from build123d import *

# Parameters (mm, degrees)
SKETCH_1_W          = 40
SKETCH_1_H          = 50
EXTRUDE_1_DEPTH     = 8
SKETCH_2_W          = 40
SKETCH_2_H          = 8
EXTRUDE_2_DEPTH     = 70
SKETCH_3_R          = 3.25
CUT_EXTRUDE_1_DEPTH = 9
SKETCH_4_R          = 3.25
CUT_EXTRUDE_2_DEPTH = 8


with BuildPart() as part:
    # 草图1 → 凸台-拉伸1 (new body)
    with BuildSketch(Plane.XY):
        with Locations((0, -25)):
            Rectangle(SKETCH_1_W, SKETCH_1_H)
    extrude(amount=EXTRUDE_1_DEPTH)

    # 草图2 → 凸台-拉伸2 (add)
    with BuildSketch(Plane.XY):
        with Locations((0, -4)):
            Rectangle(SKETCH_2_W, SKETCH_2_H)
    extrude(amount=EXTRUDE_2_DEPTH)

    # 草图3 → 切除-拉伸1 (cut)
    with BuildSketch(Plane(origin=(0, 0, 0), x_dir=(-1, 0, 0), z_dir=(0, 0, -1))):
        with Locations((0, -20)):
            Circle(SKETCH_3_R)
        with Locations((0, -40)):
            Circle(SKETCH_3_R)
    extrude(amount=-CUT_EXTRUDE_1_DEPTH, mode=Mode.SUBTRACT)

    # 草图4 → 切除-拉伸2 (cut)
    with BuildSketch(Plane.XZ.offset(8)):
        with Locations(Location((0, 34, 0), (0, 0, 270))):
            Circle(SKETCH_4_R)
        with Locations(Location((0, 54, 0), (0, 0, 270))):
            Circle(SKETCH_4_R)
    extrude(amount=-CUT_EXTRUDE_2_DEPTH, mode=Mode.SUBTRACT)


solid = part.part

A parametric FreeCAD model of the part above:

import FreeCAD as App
import Part
import Sketcher


def add_polygon(sketch, points):
    """Adds a closed chain of lines whose ends are joined by coincident constraints."""
    first, n = sketch.GeometryCount, len(points)
    for a, b in zip(points, points[1:] + points[:1]):
        sketch.addGeometry(Part.LineSegment(App.Vector(*a, 0), App.Vector(*b, 0)), False)
    for i in range(n):
        sketch.addConstraint(Sketcher.Constraint("Coincident", first + i, 2, first + (i + 1) % n, 1))

doc = App.newDocument("Part")
body = doc.addObject("PartDesign::Body", "Body")

# Sketch on XY plane
sketch1 = body.newObject("Sketcher::SketchObject", "Sketch")
sketch1.AttachmentSupport = (doc.getObject("XY_Plane"), [""])
sketch1.MapMode = "FlatFace"
add_polygon(sketch1, [(-20, 0), (-20, -50), (20, -50), (20, 0)])  # lines 0-3
sketch1.addConstraint([
    Sketcher.Constraint("Vertical", 0),
    Sketcher.Constraint("Horizontal", 1),
    Sketcher.Constraint("Vertical", 2),
    Sketcher.Constraint("Horizontal", 3),
    Sketcher.Constraint("Symmetric", 2, 2, 3, 2, -1, 1),
    Sketcher.Constraint("DistanceX", 1, 1, 1, 2, 40.0),
    Sketcher.Constraint("DistanceY", 0, 2, 0, 1, 50.0),
])
pad1 = body.newObject("PartDesign::Pad", "Pad")
pad1.Profile = sketch1
pad1.Length = 8

# Sketch on XY plane
sketch2 = body.newObject("Sketcher::SketchObject", "Sketch001")
sketch2.AttachmentSupport = (doc.getObject("XY_Plane"), [""])
sketch2.MapMode = "FlatFace"
add_polygon(sketch2, [(-20, 0), (-20, -8), (20, -8), (20, 0)])  # lines 0-3
sketch2.addConstraint([
    Sketcher.Constraint("Vertical", 0),
    Sketcher.Constraint("Horizontal", 1),
    Sketcher.Constraint("Vertical", 2),
    Sketcher.Constraint("Horizontal", 3),
    Sketcher.Constraint("Symmetric", 2, 2, 3, 2, -1, 1),
    Sketcher.Constraint("DistanceX", 1, 1, 1, 2, 40.0),
    Sketcher.Constraint("DistanceY", 0, 2, 0, 1, 8.0),
])
pad2 = body.newObject("PartDesign::Pad", "Pad001")
pad2.Profile = sketch2
pad2.Length = 70

# Sketch on XY plane
sketch3 = body.newObject("Sketcher::SketchObject", "Sketch002")
sketch3.AttachmentSupport = (doc.getObject("XY_Plane"), [""])
sketch3.MapMode = "FlatFace"
sketch3.addGeometry([
    Part.Circle(App.Vector(0, -20, 0), App.Vector(0, 0, 1), 3.2),
    Part.Circle(App.Vector(0, -40, 0), App.Vector(0, 0, 1), 3.2),
], False)
sketch3.addConstraint([
    Sketcher.Constraint("Equal", 0, 1),
    Sketcher.Constraint("PointOnObject", 0, 3, -2),
    Sketcher.Constraint("PointOnObject", 1, 3, -2),
    Sketcher.Constraint("Diameter", 0, 6.5),
    Sketcher.Constraint("DistanceY", 0, 3, -1, 1, 20.0),
    Sketcher.Constraint("DistanceY", 1, 3, -1, 1, 40.0),
])
pocket1 = body.newObject("PartDesign::Pocket", "Pocket")
pocket1.Profile = sketch3
pocket1.Length = 9
pocket1.Reversed = True

# Sketch on XZ plane
sketch4 = body.newObject("Sketcher::SketchObject", "Sketch003")
sketch4.AttachmentSupport = (doc.getObject("XZ_Plane"), [""])
sketch4.MapMode = "FlatFace"
sketch4.AttachmentOffset = App.Placement(App.Vector(0, 0, 8), App.Rotation())
sketch4.addGeometry([
    Part.Circle(App.Vector(0, 34, 0), App.Vector(0, 0, 1), 3.2),
    Part.Circle(App.Vector(0, 54, 0), App.Vector(0, 0, 1), 3.2),
], False)
sketch4.addConstraint([
    Sketcher.Constraint("Equal", 0, 1),
    Sketcher.Constraint("PointOnObject", 0, 3, -2),
    Sketcher.Constraint("PointOnObject", 1, 3, -2),
    Sketcher.Constraint("Diameter", 0, 6.5),
    Sketcher.Constraint("DistanceY", -1, 1, 0, 3, 34.0),
    Sketcher.Constraint("DistanceY", -1, 1, 1, 3, 54.0),
])
pocket2 = body.newObject("PartDesign::Pocket", "Pocket001")
pocket2.Profile = sketch4
pocket2.Length = 8

doc.recompute()
